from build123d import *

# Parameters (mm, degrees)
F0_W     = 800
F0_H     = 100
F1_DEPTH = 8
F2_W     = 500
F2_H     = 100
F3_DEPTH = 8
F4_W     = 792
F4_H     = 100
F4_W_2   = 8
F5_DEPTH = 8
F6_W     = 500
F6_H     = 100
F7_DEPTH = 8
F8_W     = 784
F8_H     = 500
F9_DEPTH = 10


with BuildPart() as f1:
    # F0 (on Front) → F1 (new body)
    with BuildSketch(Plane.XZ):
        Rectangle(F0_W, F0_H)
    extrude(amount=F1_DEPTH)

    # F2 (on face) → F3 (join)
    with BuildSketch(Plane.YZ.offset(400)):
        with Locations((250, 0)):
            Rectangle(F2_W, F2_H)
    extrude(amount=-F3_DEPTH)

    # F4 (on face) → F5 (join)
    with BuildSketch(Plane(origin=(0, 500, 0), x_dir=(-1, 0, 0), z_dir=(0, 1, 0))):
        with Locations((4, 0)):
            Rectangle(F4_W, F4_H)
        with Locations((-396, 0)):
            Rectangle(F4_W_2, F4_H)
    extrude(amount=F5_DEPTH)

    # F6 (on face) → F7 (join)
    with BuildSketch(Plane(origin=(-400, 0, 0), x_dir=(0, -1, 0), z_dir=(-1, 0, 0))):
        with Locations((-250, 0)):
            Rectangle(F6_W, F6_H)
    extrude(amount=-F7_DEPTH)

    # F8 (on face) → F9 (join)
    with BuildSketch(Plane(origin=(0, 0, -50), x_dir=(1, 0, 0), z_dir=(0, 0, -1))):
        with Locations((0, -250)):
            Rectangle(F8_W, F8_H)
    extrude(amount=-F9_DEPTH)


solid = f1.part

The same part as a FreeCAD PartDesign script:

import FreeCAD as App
import Part
import Sketcher
from FreeCAD import Vector

doc = App.newDocument("Part")
body = doc.addObject("PartDesign::Body", "Body")

# Sketch on XZ plane
sketch1 = body.newObject("Sketcher::SketchObject", "Sketch")
sketch1.AttachmentSupport = (doc.getObject("XZ_Plane"), [""])
sketch1.MapMode = "FlatFace"
sketch1.addGeometry([
    Part.LineSegment(Vector(-400, 50, 0), Vector(-400, -50, 0)),
    Part.LineSegment(Vector(-400, -50, 0), Vector(400, -50, 0)),
    Part.LineSegment(Vector(400, -50, 0), Vector(400, 50, 0)),
    Part.LineSegment(Vector(400, 50, 0), Vector(-400, 50, 0)),
], False)
sketch1.addConstraint([
    Sketcher.Constraint("Coincident", 0, 2, 1, 1),
    Sketcher.Constraint("Coincident", 1, 2, 2, 1),
    Sketcher.Constraint("Coincident", 2, 2, 3, 1),
    Sketcher.Constraint("Coincident", 3, 2, 0, 1),
    Sketcher.Constraint("Vertical", 0),
    Sketcher.Constraint("Horizontal", 1),
    Sketcher.Constraint("Vertical", 2),
    Sketcher.Constraint("Horizontal", 3),
    Sketcher.Constraint("Symmetric", 0, 2, 2, 2, -1, 1),
    Sketcher.Constraint("DistanceX", 1, 1, 1, 2, 800.0),
    Sketcher.Constraint("DistanceY", 0, 2, 0, 1, 100.0),
])
pad1 = body.newObject("PartDesign::Pad", "Pad")
pad1.Profile = sketch1
pad1.Length = 8

# Sketch on YZ plane
sketch2 = body.newObject("Sketcher::SketchObject", "Sketch001")
sketch2.AttachmentSupport = (doc.getObject("YZ_Plane"), [""])
sketch2.MapMode = "FlatFace"
sketch2.AttachmentOffset = App.Placement(Vector(0, 0, 400), App.Rotation())
sketch2.addGeometry([
    Part.LineSegment(Vector(0, 50, 0), Vector(0, -50, 0)),
    Part.LineSegment(Vector(0, -50, 0), Vector(500, -50, 0)),
    Part.LineSegment(Vector(500, -50, 0), Vector(500, 50, 0)),
    Part.LineSegment(Vector(500, 50, 0), Vector(0, 50, 0)),
], False)
sketch2.addConstraint([
    Sketcher.Constraint("Coincident", 0, 2, 1, 1),
    Sketcher.Constraint("Coincident", 1, 2, 2, 1),
    Sketcher.Constraint("Coincident", 2, 2, 3, 1),
    Sketcher.Constraint("Coincident", 3, 2, 0, 1),
    Sketcher.Constraint("Vertical", 0),
    Sketcher.Constraint("Horizontal", 1),
    Sketcher.Constraint("Vertical", 2),
    Sketcher.Constraint("Horizontal", 3),
    Sketcher.Constraint("Symmetric", 0, 2, 3, 2, -1, 1),
    Sketcher.Constraint("DistanceX", 1, 1, 1, 2, 500.0),
    Sketcher.Constraint("DistanceY", 0, 2, 0, 1, 100.0),
])
pad2 = body.newObject("PartDesign::Pad", "Pad001")
pad2.Profile = sketch2
pad2.Length = 8
pad2.Reversed = True

# Sketch on XZ plane
sketch3 = body.newObject("Sketcher::SketchObject", "Sketch002")
sketch3.AttachmentSupport = (doc.getObject("XZ_Plane"), [""])
sketch3.MapMode = "FlatFace"
sketch3.AttachmentOffset = App.Placement(Vector(0, 0, -500), App.Rotation())
sketch3.addGeometry([
    Part.LineSegment(Vector(-400, -50, 0), Vector(-400, 50, 0)),
    Part.LineSegment(Vector(-400, 50, 0), Vector(400, 50, 0)),
    Part.LineSegment(Vector(400, 50, 0), Vector(400, -50, 0)),
    Part.LineSegment(Vector(400, -50, 0), Vector(-400, -50, 0)),
], False)
sketch3.addConstraint([
    Sketcher.Constraint("Coincident", 0, 2, 1, 1),
    Sketcher.Constraint("Coincident", 1, 2, 2, 1),
    Sketcher.Constraint("Coincident", 2, 2, 3, 1),
    Sketcher.Constraint("Coincident", 3, 2, 0, 1),
    Sketcher.Constraint("Vertical", 0),
    Sketcher.Constraint("Horizontal", 1),
    Sketcher.Constraint("Vertical", 2),
    Sketcher.Constraint("Horizontal", 3),
    Sketcher.Constraint("Symmetric", 0, 2, 2, 2, -1, 1),
    Sketcher.Constraint("DistanceX", 1, 1, 1, 2, 800.0),
    Sketcher.Constraint("DistanceY", 0, 1, 0, 2, 100.0),
])
pad3 = body.newObject("PartDesign::Pad", "Pad002")
pad3.Profile = sketch3
pad3.Length = 8
pad3.Reversed = True

# Sketch on YZ plane
sketch4 = body.newObject("Sketcher::SketchObject", "Sketch003")
sketch4.AttachmentSupport = (doc.getObject("YZ_Plane"), [""])
sketch4.MapMode = "FlatFace"
sketch4.AttachmentOffset = App.Placement(Vector(0, 0, -400), App.Rotation())
sketch4.addGeometry([
    Part.LineSegment(Vector(500, 50, 0), Vector(500, -50, 0)),
    Part.LineSegment(Vector(500, -50, 0), Vector(0, -50, 0)),
    Part.LineSegment(Vector(0, -50, 0), Vector(0, 50, 0)),
    Part.LineSegment(Vector(0, 50, 0), Vector(500, 50, 0)),
], False)
sketch4.addConstraint([
    Sketcher.Constraint("Coincident", 0, 2, 1, 1),
    Sketcher.Constraint("Coincident", 1, 2, 2, 1),
    Sketcher.Constraint("Coincident", 2, 2, 3, 1),
    Sketcher.Constraint("Coincident", 3, 2, 0, 1),
    Sketcher.Constraint("Vertical", 0),
    Sketcher.Constraint("Horizontal", 1),
    Sketcher.Constraint("Vertical", 2),
    Sketcher.Constraint("Horizontal", 3),
    Sketcher.Constraint("Symmetric", 1, 2, 2, 2, -1, 1),
    Sketcher.Constraint("DistanceX", 1, 2, 1, 1, 500.0),
    Sketcher.Constraint("DistanceY", 0, 2, 0, 1, 100.0),
])
pad4 = body.newObject("PartDesign::Pad", "Pad003")
pad4.Profile = sketch4
pad4.Length = 8

# Sketch on XY plane
sketch5 = body.newObject("Sketcher::SketchObject", "Sketch004")
sketch5.AttachmentSupport = (doc.getObject("XY_Plane"), [""])
sketch5.MapMode = "FlatFace"
sketch5.AttachmentOffset = App.Placement(Vector(0, 0, -50), App.Rotation())
sketch5.addGeometry([
    Part.LineSegment(Vector(-392, 0, 0), Vector(-392, 500, 0)),
    Part.LineSegment(Vector(-392, 500, 0), Vector(392, 500, 0)),
    Part.LineSegment(Vector(392, 500, 0), Vector(392, 0, 0)),
    Part.LineSegment(Vector(392, 0, 0), Vector(-392, 0, 0)),
], False)
sketch5.addConstraint([
    Sketcher.Constraint("Coincident", 0, 2, 1, 1),
    Sketcher.Constraint("Coincident", 1, 2, 2, 1),
    Sketcher.Constraint("Coincident", 2, 2, 3, 1),
    Sketcher.Constraint("Coincident", 3, 2, 0, 1),
    Sketcher.Constraint("Vertical", 0),
    Sketcher.Constraint("Horizontal", 1),
    Sketcher.Constraint("Vertical", 2),
    Sketcher.Constraint("Horizontal", 3),
    Sketcher.Constraint("Symmetric", 2, 2, 3, 2, -1, 1),
    Sketcher.Constraint("DistanceX", 1, 1, 1, 2, 784.0),
    Sketcher.Constraint("DistanceY", 0, 1, 0, 2, 500.0),
])
pad5 = body.newObject("PartDesign::Pad", "Pad004")
pad5.Profile = sketch5
pad5.Length = 10

doc.recompute()
